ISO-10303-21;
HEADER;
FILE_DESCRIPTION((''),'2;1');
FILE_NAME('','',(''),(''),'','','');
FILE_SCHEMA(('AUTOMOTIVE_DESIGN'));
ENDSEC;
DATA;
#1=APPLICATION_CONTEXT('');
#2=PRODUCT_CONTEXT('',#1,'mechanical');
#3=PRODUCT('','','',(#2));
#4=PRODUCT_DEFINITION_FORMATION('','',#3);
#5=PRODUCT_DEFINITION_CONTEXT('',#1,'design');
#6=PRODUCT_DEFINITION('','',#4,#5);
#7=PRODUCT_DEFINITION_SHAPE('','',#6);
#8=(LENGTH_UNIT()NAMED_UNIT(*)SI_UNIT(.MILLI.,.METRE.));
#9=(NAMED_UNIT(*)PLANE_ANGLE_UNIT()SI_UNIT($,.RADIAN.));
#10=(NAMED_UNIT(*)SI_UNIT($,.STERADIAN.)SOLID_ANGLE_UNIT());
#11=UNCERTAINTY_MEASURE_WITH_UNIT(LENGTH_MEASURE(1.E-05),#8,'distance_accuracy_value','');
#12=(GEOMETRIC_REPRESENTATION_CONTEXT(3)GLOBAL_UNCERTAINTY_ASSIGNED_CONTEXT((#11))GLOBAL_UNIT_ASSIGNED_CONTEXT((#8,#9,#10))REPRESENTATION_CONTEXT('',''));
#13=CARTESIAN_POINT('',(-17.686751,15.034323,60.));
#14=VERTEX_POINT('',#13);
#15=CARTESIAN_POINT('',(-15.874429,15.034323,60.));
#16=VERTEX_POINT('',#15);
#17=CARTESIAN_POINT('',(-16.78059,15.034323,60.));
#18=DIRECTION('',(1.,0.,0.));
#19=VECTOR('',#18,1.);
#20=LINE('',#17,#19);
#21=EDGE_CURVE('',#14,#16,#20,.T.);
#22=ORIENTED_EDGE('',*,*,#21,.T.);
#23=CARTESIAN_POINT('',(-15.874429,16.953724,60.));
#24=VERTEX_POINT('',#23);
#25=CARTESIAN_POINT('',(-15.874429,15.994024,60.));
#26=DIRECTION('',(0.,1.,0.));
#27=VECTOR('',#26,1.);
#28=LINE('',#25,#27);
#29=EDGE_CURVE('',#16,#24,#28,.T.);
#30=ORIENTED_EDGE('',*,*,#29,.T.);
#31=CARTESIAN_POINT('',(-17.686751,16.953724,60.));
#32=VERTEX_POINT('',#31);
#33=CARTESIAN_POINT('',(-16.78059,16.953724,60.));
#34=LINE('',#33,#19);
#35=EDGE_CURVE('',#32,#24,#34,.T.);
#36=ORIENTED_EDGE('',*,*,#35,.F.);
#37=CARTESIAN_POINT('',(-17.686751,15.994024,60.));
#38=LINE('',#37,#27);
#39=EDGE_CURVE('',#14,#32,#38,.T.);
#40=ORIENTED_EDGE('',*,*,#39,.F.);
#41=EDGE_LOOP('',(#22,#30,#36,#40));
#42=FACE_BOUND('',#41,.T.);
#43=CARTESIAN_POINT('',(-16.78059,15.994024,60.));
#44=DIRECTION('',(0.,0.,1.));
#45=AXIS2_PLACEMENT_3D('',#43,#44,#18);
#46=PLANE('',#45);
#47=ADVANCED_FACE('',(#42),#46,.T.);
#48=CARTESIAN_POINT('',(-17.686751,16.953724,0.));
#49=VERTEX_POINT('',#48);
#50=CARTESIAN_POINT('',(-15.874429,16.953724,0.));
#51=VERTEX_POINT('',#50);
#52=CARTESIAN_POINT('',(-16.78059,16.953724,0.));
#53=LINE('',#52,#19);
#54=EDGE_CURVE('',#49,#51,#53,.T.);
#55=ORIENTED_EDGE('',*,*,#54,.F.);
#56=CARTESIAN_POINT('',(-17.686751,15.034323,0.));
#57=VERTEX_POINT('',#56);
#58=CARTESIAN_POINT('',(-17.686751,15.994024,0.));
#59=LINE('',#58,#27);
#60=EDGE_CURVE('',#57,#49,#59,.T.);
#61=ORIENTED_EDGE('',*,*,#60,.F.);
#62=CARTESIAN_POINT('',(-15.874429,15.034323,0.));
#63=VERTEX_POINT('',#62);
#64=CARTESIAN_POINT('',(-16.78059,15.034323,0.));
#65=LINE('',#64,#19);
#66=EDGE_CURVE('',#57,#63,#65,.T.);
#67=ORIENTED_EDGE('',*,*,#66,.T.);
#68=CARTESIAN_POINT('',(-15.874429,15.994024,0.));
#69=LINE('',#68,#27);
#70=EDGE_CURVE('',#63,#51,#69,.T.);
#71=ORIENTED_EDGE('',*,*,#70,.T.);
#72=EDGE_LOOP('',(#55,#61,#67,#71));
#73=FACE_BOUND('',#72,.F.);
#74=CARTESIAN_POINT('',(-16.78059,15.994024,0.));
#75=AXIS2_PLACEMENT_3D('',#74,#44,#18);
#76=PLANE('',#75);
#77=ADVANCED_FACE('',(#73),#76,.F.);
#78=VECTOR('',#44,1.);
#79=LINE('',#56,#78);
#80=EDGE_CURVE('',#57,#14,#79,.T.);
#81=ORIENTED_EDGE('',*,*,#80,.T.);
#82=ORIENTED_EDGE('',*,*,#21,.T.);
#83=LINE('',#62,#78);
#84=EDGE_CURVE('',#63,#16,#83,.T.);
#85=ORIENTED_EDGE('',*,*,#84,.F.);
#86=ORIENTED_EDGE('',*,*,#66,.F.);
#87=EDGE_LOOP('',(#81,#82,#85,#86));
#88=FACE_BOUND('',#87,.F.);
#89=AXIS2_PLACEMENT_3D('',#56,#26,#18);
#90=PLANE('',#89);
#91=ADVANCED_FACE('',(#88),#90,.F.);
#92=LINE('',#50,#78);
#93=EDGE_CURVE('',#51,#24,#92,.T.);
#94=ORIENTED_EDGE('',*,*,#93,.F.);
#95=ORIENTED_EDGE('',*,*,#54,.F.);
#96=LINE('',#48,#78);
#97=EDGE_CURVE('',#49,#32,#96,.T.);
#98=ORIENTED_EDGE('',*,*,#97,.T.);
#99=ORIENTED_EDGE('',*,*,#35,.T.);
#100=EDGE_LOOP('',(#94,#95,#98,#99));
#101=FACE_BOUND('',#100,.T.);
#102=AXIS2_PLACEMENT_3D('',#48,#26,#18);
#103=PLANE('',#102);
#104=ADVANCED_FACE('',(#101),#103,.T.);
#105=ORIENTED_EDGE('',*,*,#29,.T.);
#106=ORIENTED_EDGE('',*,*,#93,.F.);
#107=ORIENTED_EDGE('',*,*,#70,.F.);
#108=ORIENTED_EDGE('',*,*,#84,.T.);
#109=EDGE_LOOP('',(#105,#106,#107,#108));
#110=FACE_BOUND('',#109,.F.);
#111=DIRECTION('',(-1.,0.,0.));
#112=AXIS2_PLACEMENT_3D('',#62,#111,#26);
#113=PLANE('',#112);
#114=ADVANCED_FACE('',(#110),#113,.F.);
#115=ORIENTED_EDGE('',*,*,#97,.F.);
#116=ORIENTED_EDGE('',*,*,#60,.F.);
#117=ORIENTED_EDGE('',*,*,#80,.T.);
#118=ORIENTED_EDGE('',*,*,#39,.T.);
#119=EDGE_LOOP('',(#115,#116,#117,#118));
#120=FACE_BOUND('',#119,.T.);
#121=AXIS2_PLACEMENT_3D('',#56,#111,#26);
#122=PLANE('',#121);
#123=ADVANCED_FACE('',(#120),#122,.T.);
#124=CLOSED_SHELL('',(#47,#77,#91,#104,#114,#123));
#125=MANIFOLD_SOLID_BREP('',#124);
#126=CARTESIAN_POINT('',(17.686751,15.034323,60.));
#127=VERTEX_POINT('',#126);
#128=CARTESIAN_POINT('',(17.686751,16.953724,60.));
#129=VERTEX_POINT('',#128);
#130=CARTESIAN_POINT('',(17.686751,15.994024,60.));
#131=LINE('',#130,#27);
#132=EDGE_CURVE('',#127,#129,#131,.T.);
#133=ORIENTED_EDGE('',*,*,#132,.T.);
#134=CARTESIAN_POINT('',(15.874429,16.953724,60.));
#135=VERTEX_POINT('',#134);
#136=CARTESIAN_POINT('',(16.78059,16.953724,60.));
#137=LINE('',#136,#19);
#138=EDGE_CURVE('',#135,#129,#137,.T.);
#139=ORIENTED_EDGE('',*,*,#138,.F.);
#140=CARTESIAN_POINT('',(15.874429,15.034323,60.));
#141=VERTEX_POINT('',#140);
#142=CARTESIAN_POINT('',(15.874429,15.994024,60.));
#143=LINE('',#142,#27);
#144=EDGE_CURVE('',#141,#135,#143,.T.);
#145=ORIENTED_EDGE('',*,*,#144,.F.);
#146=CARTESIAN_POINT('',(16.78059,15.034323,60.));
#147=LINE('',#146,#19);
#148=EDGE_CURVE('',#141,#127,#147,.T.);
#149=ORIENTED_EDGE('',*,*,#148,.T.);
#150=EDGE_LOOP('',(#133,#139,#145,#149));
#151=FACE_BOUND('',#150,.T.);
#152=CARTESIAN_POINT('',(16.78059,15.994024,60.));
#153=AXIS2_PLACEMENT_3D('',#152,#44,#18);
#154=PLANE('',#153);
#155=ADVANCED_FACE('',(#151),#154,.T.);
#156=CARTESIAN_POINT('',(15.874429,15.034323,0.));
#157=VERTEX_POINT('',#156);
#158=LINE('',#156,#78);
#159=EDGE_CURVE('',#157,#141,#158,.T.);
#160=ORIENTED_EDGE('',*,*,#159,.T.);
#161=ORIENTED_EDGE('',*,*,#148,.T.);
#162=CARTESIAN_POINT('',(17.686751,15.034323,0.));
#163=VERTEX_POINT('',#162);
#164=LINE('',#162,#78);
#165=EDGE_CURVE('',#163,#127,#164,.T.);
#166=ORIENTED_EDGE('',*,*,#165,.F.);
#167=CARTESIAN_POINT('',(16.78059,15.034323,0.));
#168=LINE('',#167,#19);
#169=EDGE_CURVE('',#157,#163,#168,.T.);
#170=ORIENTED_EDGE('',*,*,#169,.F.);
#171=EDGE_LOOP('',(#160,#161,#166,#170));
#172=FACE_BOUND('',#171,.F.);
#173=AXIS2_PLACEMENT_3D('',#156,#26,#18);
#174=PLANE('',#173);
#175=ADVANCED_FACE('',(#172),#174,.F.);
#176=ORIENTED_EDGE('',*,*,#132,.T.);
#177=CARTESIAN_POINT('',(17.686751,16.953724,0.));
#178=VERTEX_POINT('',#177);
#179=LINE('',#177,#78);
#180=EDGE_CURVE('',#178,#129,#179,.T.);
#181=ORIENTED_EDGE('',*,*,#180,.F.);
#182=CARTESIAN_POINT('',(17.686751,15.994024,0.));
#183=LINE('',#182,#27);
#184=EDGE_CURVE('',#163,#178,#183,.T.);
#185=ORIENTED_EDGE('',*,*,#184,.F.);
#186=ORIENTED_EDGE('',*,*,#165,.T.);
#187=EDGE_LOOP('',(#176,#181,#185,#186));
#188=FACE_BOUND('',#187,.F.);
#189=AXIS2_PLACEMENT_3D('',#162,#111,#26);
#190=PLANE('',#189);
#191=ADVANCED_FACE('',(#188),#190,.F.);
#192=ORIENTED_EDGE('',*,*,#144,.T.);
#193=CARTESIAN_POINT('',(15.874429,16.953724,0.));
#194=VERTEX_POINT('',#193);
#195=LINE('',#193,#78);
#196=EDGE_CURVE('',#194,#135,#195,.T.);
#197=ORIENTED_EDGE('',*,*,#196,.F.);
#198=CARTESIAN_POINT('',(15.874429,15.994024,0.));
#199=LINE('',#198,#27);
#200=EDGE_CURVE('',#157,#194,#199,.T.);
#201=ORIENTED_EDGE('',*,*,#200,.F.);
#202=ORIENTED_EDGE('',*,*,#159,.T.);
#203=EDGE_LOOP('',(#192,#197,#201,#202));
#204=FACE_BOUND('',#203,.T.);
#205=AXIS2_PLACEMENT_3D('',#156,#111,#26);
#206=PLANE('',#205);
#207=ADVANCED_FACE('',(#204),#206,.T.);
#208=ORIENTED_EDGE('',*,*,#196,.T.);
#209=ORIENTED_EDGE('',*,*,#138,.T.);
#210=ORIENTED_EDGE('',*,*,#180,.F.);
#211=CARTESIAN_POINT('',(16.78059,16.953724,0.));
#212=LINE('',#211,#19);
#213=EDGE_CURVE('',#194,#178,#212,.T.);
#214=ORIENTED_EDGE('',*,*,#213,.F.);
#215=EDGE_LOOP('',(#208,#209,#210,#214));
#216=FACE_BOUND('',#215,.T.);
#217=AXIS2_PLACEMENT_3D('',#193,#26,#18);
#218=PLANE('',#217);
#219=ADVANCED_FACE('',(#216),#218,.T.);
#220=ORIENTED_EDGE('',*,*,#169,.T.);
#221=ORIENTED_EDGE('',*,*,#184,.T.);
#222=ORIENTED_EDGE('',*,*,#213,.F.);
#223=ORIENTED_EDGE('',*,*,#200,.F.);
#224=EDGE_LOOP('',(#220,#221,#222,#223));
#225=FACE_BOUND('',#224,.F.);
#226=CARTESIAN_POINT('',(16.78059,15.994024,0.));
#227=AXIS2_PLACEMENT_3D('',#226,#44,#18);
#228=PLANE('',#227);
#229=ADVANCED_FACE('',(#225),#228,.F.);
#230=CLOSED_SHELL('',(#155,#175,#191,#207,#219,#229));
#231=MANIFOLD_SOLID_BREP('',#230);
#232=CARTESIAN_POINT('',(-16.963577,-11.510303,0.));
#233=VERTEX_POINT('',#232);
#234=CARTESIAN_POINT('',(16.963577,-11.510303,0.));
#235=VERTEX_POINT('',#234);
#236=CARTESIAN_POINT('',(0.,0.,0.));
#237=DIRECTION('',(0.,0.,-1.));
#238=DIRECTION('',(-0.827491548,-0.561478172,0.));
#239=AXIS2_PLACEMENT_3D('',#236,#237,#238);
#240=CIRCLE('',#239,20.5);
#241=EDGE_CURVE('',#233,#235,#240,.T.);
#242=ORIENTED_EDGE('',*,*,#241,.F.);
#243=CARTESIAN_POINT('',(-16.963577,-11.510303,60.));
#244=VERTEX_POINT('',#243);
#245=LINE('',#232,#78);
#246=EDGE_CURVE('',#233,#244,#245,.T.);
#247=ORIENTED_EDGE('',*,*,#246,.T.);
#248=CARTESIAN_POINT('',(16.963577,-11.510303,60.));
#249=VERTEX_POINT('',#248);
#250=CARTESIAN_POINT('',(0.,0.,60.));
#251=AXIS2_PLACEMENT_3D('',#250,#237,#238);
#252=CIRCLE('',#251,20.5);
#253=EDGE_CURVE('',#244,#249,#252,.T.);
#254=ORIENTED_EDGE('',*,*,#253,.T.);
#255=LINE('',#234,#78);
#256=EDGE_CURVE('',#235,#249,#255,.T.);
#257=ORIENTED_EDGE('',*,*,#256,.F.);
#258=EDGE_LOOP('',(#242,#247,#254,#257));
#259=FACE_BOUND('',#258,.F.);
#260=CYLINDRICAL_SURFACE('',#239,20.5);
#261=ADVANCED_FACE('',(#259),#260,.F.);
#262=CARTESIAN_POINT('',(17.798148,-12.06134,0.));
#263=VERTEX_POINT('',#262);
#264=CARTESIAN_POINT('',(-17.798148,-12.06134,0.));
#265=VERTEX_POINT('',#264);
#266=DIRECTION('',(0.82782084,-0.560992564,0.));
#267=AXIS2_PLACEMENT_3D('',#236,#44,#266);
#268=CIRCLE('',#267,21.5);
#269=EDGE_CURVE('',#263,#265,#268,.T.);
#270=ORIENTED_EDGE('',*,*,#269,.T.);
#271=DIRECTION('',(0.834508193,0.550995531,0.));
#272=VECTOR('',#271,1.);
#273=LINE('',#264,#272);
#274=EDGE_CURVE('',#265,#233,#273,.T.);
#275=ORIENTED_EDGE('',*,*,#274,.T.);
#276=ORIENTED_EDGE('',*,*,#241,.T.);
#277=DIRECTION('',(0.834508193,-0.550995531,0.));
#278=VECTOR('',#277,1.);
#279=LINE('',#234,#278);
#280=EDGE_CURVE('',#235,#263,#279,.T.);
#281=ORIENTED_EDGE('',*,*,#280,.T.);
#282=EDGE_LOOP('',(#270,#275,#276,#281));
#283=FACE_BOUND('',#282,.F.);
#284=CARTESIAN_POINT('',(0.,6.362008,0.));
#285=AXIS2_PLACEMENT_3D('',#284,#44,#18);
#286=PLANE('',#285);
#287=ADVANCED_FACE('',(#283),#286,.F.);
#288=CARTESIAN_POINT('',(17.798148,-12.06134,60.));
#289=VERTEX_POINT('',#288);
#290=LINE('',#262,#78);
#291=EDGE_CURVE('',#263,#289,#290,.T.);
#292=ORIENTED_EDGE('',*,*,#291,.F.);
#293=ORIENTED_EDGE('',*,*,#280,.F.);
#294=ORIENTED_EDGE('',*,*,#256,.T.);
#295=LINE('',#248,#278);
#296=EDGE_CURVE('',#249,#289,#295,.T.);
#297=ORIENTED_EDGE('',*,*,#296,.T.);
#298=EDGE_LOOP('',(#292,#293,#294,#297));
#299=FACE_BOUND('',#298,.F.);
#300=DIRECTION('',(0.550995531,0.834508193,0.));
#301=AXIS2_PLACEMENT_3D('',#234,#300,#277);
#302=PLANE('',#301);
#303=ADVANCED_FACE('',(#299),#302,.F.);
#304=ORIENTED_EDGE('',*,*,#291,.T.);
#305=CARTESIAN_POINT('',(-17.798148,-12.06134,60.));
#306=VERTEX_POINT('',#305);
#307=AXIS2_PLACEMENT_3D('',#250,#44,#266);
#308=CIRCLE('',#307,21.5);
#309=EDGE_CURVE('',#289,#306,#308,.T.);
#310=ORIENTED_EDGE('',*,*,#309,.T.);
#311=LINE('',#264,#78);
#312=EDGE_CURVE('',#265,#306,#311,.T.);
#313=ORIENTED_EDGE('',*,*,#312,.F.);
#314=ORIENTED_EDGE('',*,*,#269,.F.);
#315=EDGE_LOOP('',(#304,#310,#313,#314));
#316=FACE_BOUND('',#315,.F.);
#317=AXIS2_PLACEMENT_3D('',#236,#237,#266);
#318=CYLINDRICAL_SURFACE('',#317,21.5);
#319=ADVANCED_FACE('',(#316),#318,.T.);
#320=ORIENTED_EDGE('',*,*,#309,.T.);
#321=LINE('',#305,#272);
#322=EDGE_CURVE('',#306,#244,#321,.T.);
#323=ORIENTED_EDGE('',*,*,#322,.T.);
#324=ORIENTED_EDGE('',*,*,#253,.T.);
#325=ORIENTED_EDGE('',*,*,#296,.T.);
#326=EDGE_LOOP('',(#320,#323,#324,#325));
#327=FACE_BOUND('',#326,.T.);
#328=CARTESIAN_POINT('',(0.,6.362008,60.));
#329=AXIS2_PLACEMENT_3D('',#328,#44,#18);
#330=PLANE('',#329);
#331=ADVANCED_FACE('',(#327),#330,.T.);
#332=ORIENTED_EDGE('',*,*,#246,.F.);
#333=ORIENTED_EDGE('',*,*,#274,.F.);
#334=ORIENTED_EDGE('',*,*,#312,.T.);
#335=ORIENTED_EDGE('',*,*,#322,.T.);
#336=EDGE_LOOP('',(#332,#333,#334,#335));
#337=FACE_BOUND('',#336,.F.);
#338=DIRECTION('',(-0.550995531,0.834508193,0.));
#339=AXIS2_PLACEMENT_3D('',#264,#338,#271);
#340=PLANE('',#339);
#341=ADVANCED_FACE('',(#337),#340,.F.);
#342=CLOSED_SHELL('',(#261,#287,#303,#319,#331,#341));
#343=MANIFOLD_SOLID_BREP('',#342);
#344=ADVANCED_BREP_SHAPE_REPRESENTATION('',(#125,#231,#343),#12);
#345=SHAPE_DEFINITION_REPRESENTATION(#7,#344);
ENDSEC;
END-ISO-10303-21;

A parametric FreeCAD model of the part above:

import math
import FreeCAD as App
import Part
import Sketcher


def add_polygon(sketch, points):
    """Adds a closed chain of lines whose ends are joined by coincident constraints."""
    first, n = sketch.GeometryCount, len(points)
    for a, b in zip(points, points[1:] + points[:1]):
        sketch.addGeometry(Part.LineSegment(App.Vector(*a, 0), App.Vector(*b, 0)), False)
    for i in range(n):
        sketch.addConstraint(Sketcher.Constraint("Coincident", first + i, 2, first + (i + 1) % n, 1))

doc = App.newDocument("Part")
params = doc.addObject("Spreadsheet::Sheet", "Params")
for row, (alias, value) in enumerate([
    ("sketch1_radius", "20.5 mm"),
    ("sketch1_radius2", "21.5 mm"),
    ("pad1_length", "60 mm"),
    ("pad2_length", "60 mm"),
    ("pad3_length", "60 mm"),
], start=1):
    params.set(f"A{row}", alias)
    params.set(f"B{row}", "=" + value)
    params.setAlias(f"B{row}", alias)

body = doc.addObject("PartDesign::Body", "Body")

# Sketch on XY plane
sketch1 = doc.addObject("Sketcher::SketchObject", "Sketch")
body.addObject(sketch1)
sketch1.AttachmentSupport = (doc.XY_Plane, [""])
sketch1.MapMode = "FlatFace"
sketch1.addGeometry([
    Part.ArcOfCircle(Part.Circle(App.Vector(0, 0, 0), App.Vector(0, 0, 1), 20.5), math.radians(-34.158085), math.radians(214.158085)),
    Part.LineSegment(App.Vector(16.963577, -11.510303, 0), App.Vector(17.798148, -12.06134, 0)),
    Part.ArcOfCircle(Part.Circle(App.Vector(0, 0, 0), App.Vector(0, 0, 1), 21.5), math.radians(-34.124468), math.radians(214.124468)),
    Part.LineSegment(App.Vector(-17.798148, -12.06134, 0), App.Vector(-16.963577, -11.510303, 0)),
], False)
sketch1.addConstraint([
    Sketcher.Constraint("Coincident", 0, 1, 1, 1),
    Sketcher.Constraint("Coincident", 1, 2, 2, 1),
    Sketcher.Constraint("Coincident", 2, 2, 3, 1),
    Sketcher.Constraint("Coincident", 3, 2, 0, 2),
    Sketcher.Constraint("Coincident", 0, 3, -1, 1),
    Sketcher.Constraint("Coincident", 2, 3, -1, 1),
    Sketcher.Constraint("Horizontal", 1, 2, 2, 2),
    Sketcher.Constraint("Horizontal", 0, 1, 3, 2),
    Sketcher.Constraint("Radius", 0, 20.5),
    Sketcher.Constraint("Radius", 2, 21.5),
    Sketcher.Constraint("DistanceX", -1, 1, 1, 2, 17.798148),
    Sketcher.Constraint("DistanceX", 0, 1, 1, 2, 0.834571),
])
sketch1.setExpression("Constraints[8]", "Params.sketch1_radius")
sketch1.setExpression("Constraints[9]", "Params.sketch1_radius2")
pad1 = doc.addObject("PartDesign::Pad", "Pad")
body.addObject(pad1)
pad1.Profile = sketch1
pad1.setExpression("Length", "Params.pad1_length")
body2 = doc.addObject("PartDesign::Body", "Body001")

# Sketch on XY plane
sketch2 = doc.addObject("Sketcher::SketchObject", "Sketch001")
body2.addObject(sketch2)
sketch2.AttachmentSupport = (doc.getObject("XY_Plane001"), [""])
sketch2.MapMode = "FlatFace"
add_polygon(sketch2, [(-17.686751, 16.953724), (-17.686751, 15.034323), (-15.874429, 15.034323), (-15.874429, 16.953724)])  # lines 0-3
sketch2.addConstraint([
    Sketcher.Constraint("Vertical", 0),
    Sketcher.Constraint("Horizontal", 1),
    Sketcher.Constraint("Vertical", 2),
    Sketcher.Constraint("Horizontal", 3),
    Sketcher.Constraint("DistanceY", 0, 2, 0, 1, 1.919401),
    Sketcher.Constraint("DistanceX", 1, 1, 1, 2, 1.812323),
    Sketcher.Constraint("DistanceX", 0, 2, -1, 1, 17.686751),
    Sketcher.Constraint("DistanceY", -1, 1, 0, 2, 15.034323),
])
pad2 = doc.addObject("PartDesign::Pad", "Pad001")
body2.addObject(pad2)
pad2.Profile = sketch2
pad2.setExpression("Length", "Params.pad2_length")
body3 = doc.addObject("PartDesign::Body", "Body002")

# Sketch on XY plane
sketch3 = doc.addObject("Sketcher::SketchObject", "Sketch002")
body3.addObject(sketch3)
sketch3.AttachmentSupport = (doc.getObject("XY_Plane002"), [""])
sketch3.MapMode = "FlatFace"
add_polygon(sketch3, [(15.874429, 16.953724), (15.874429, 15.034323), (17.686751, 15.034323), (17.686751, 16.953724)])  # lines 0-3
sketch3.addConstraint([
    Sketcher.Constraint("Vertical", 0),
    Sketcher.Constraint("Horizontal", 1),
    Sketcher.Constraint("Vertical", 2),
    Sketcher.Constraint("Horizontal", 3),
    Sketcher.Constraint("DistanceY", 0, 2, 0, 1, 1.919401),
    Sketcher.Constraint("DistanceX", 1, 1, 1, 2, 1.812323),
    Sketcher.Constraint("DistanceX", -1, 1, 0, 2, 15.874429),
    Sketcher.Constraint("DistanceY", -1, 1, 0, 2, 15.034323),
])
pad3 = doc.addObject("PartDesign::Pad", "Pad002")
body3.addObject(pad3)
pad3.Profile = sketch3
pad3.setExpression("Length", "Params.pad3_length")

doc.recompute()
